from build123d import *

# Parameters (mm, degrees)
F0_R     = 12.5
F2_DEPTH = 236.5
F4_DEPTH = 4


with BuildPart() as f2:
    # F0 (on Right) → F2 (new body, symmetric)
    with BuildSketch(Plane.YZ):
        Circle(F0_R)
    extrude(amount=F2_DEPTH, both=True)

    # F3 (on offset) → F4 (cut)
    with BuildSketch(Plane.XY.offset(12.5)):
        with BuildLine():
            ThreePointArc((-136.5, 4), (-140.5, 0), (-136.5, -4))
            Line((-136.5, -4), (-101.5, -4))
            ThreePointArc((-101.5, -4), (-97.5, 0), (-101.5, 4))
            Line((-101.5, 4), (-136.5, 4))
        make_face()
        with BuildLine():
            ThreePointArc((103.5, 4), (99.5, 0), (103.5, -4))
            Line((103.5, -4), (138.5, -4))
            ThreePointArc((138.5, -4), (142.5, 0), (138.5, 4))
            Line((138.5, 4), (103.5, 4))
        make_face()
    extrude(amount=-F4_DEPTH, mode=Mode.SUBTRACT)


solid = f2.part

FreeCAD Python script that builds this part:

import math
import FreeCAD as App
import Part
import Sketcher

V = App.Vector
Q = App.Units.Quantity

doc = App.newDocument("Part")
params = doc.addObject("Spreadsheet::Sheet", "Params")
for row, (alias, value) in enumerate([
    ("sketch1_diameter", "25 mm"),
    ("pad1_length", "473 mm"),
    ("sketch2_radius", "4 mm"),
    ("sketch2_width", "35 mm"),
    ("pocket1_length", "4 mm"),
], start=1):
    params.set(f"A{row}", alias)
    params.set(f"B{row}", "=" + value)
    params.setAlias(f"B{row}", alias)

body = doc.addObject("PartDesign::Body", "Body")

# Sketch on YZ plane
sketch1 = body.newObject("Sketcher::SketchObject", "Sketch")
sketch1.AttachmentSupport = (doc.getObject("YZ_Plane"), [""])
sketch1.MapMode = "FlatFace"
sketch1.addGeometry(Part.Circle(V(0, 0, 0), V(0, 0, 1), 12), False)
sketch1.addConstraint(Sketcher.Constraint("Coincident", 0, 3, -1, 1))
sketch1.addConstraint(Sketcher.Constraint("Diameter", 0, Q("25 mm")))
sketch1.setExpression("Constraints[1]", "Params.sketch1_diameter")
pad1 = body.newObject("PartDesign::Pad", "Pad")
pad1.Profile = sketch1
pad1.setExpression("Length", "Params.pad1_length")
pad1.Midplane = True

# Sketch on XY plane
sketch2 = body.newObject("Sketcher::SketchObject", "Sketch001")
sketch2.AttachmentSupport = (doc.getObject("XY_Plane"), [""])
sketch2.MapMode = "FlatFace"
sketch2.AttachmentOffset = App.Placement(V(0, 0, 12.5), App.Rotation())
sketch2.addGeometry(Part.ArcOfCircle(Part.Circle(V(-136.5, 0, 0), V(0, 0, 1), 4), math.radians(90), math.radians(270)), False)
sketch2.addGeometry(Part.LineSegment(V(-136.5, -4, 0), V(-101.5, -4, 0)), False)
sketch2.addGeometry(Part.ArcOfCircle(Part.Circle(V(-101.5, 0, 0), V(0, 0, 1), 4), math.radians(-90), math.radians(90)), False)
sketch2.addGeometry(Part.LineSegment(V(-101.5, 4, 0), V(-136.5, 4, 0)), False)
sketch2.addGeometry(Part.ArcOfCircle(Part.Circle(V(103.5, 0, 0), V(0, 0, 1), 4), math.radians(90), math.radians(270)), False)
sketch2.addGeometry(Part.LineSegment(V(103.5, -4, 0), V(138.5, -4, 0)), False)
sketch2.addGeometry(Part.ArcOfCircle(Part.Circle(V(138.5, 0, 0), V(0, 0, 1), 4), math.radians(-90), math.radians(90)), False)
sketch2.addGeometry(Part.LineSegment(V(138.5, 4, 0), V(103.5, 4, 0)), False)
sketch2.addConstraint(Sketcher.Constraint("Tangent", 0, 2, 1, 1))
sketch2.addConstraint(Sketcher.Constraint("Tangent", 1, 2, 2, 1))
sketch2.addConstraint(Sketcher.Constraint("Tangent", 2, 2, 3, 1))
sketch2.addConstraint(Sketcher.Constraint("Tangent", 3, 2, 0, 1))
sketch2.addConstraint(Sketcher.Constraint("Tangent", 4, 2, 5, 1))
sketch2.addConstraint(Sketcher.Constraint("Tangent", 5, 2, 6, 1))
sketch2.addConstraint(Sketcher.Constraint("Tangent", 6, 2, 7, 1))
sketch2.addConstraint(Sketcher.Constraint("Tangent", 7, 2, 4, 1))
sketch2.addConstraint(Sketcher.Constraint("Horizontal", 1))
sketch2.addConstraint(Sketcher.Constraint("Horizontal", 3))
sketch2.addConstraint(Sketcher.Constraint("Horizontal", 5))
sketch2.addConstraint(Sketcher.Constraint("Horizontal", 7))
sketch2.addConstraint(Sketcher.Constraint("Equal", 2, 4))
sketch2.addConstraint(Sketcher.Constraint("PointOnObject", 0, 3, -1))
sketch2.addConstraint(Sketcher.Constraint("PointOnObject", 4, 3, -1))
sketch2.addConstraint(Sketcher.Constraint("Equal", 3, 5))
sketch2.addConstraint(Sketcher.Constraint("Radius", 0, Q("4 mm")))
sketch2.addConstraint(Sketcher.Constraint("DistanceX", 1, 1, 1, 2, Q("35 mm")))
sketch2.addConstraint(Sketcher.Constraint("DistanceX", 2, 3, 4, 3, Q("205 mm")))
sketch2.addConstraint(Sketcher.Constraint("DistanceX", 0, 3, -1, 1, Q("136.5 mm")))
sketch2.setExpression("Constraints[16]", "Params.sketch2_radius")
sketch2.setExpression("Constraints[17]", "Params.sketch2_width")
pocket1 = body.newObject("PartDesign::Pocket", "Pocket")
pocket1.Profile = sketch2
pocket1.setExpression("Length", "Params.pocket1_length")

doc.recompute()
